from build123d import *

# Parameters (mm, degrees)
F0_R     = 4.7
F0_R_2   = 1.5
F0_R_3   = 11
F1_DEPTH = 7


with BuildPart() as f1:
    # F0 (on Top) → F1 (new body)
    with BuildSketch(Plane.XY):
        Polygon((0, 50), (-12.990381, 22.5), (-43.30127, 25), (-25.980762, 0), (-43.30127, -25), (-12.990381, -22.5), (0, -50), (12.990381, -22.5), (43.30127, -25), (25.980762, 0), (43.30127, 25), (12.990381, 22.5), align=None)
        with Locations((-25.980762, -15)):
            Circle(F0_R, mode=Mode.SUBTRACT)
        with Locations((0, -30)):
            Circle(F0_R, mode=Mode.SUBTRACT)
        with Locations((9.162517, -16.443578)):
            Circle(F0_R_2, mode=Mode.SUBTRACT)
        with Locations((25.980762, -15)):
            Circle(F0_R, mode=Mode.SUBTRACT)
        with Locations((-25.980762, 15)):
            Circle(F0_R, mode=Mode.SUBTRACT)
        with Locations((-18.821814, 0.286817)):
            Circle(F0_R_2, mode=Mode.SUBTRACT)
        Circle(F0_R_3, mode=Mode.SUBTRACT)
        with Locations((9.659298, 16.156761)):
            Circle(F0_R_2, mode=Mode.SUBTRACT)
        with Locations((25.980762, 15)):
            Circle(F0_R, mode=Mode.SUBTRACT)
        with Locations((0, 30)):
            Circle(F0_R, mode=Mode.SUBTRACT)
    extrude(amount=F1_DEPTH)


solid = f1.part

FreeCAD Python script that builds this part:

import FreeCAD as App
import Part
import Sketcher

V = App.Vector


def add_polygon(sketch, points):
    """Adds a closed chain of lines whose ends are joined by coincident constraints."""
    first, n = sketch.GeometryCount, len(points)
    for a, b in zip(points, points[1:] + points[:1]):
        sketch.addGeometry(Part.LineSegment(App.Vector(*a, 0), App.Vector(*b, 0)), False)
    for i in range(n):
        sketch.addConstraint(Sketcher.Constraint("Coincident", first + i, 2, first + (i + 1) % n, 1))

doc = App.newDocument("Part")
body = doc.addObject("PartDesign::Body", "Body")

# Sketch on XY plane
sketch1 = doc.addObject("Sketcher::SketchObject", "Sketch")
body.addObject(sketch1)
sketch1.AttachmentSupport = (doc.XY_Plane, [""])
sketch1.MapMode = "FlatFace"
add_polygon(sketch1, [(0, 50), (-13, 22.5), (-43.3, 25), (-26, 0), (-43.3, -25), (-13, -22.5), (0, -50), (13, -22.5), (43.3, -25), (26, 0), (43.3, 25), (13, 22.5)])  # lines 0-11
sketch1.addGeometry(Part.Circle(V(-26, -15, 0), V(0, 0, 1), 4.7), False)  # 12
sketch1.addGeometry(Part.Circle(V(0, -30, 0), V(0, 0, 1), 4.7), False)  # 13
sketch1.addGeometry(Part.Circle(V(9.2, -16.4, 0), V(0, 0, 1), 1.5), False)  # 14
sketch1.addGeometry(Part.Circle(V(26, -15, 0), V(0, 0, 1), 4.7), False)  # 15
sketch1.addGeometry(Part.Circle(V(-18.8, 0.3, 0), V(0, 0, 1), 1.5), False)  # 16
sketch1.addGeometry(Part.Circle(V(-26, 15, 0), V(0, 0, 1), 4.7), False)  # 17
sketch1.addGeometry(Part.Circle(V(0, 0, 0), V(0, 0, 1), 11), False)  # 18
sketch1.addGeometry(Part.Circle(V(9.7, 16.2, 0), V(0, 0, 1), 1.5), False)  # 19
sketch1.addGeometry(Part.Circle(V(26, 15, 0), V(0, 0, 1), 4.7), False)  # 20
sketch1.addGeometry(Part.Circle(V(0, 30, 0), V(0, 0, 1), 4.7), False)  # 21
sketch1.addConstraint(Sketcher.Constraint("Coincident", 18, 3, -1, 1))
sketch1.addConstraint(Sketcher.Constraint("Equal", 12, 13))
sketch1.addConstraint(Sketcher.Constraint("Equal", 13, 15))
sketch1.addConstraint(Sketcher.Constraint("Equal", 14, 16))
sketch1.addConstraint(Sketcher.Constraint("Equal", 15, 17))
sketch1.addConstraint(Sketcher.Constraint("Equal", 16, 19))
sketch1.addConstraint(Sketcher.Constraint("Equal", 17, 20))
sketch1.addConstraint(Sketcher.Constraint("Equal", 20, 21))
sketch1.addConstraint(Sketcher.Constraint("Symmetric", 15, 3, 17, 3, -1, 1))
sketch1.addConstraint(Sketcher.Constraint("Symmetric", 12, 3, 20, 3, -1, 1))
sketch1.addConstraint(Sketcher.Constraint("Symmetric", 13, 3, 21, 3, -1, 1))
sketch1.addConstraint(Sketcher.Constraint("Symmetric", 0, 2, 6, 2, -1, 1))
sketch1.addConstraint(Sketcher.Constraint("Symmetric", 1, 2, 7, 2, -1, 1))
sketch1.addConstraint(Sketcher.Constraint("Symmetric", 2, 2, 8, 2, -1, 1))
sketch1.addConstraint(Sketcher.Constraint("Symmetric", 3, 2, 9, 2, -1, 1))
sketch1.addConstraint(Sketcher.Constraint("Symmetric", 4, 2, 10, 2, -1, 1))
sketch1.addConstraint(Sketcher.Constraint("Symmetric", 5, 2, 11, 2, -1, 1))
sketch1.addConstraint(Sketcher.Constraint("Symmetric", 12, 3, 15, 3, -2))
sketch1.addConstraint(Sketcher.Constraint("Symmetric", 4, 2, 6, 2, -2))
sketch1.addConstraint(Sketcher.Constraint("Symmetric", 3, 2, 7, 2, -2))
sketch1.addConstraint(Sketcher.Constraint("PointOnObject", 13, 3, -2))
sketch1.addConstraint(Sketcher.Constraint("PointOnObject", 2, 2, -1))
sketch1.addConstraint(Sketcher.Constraint("PointOnObject", 5, 2, -2))
sketch1.addConstraint(Sketcher.Constraint("Vertical", 17, 3, 2, 2))
sketch1.addConstraint(Sketcher.Constraint("Equal", 0, 1))
sketch1.addConstraint(Sketcher.Constraint("Equal", 1, 2))
sketch1.addConstraint(Sketcher.Constraint("Diameter", 14, 3.0))
sketch1.addConstraint(Sketcher.Constraint("Diameter", 18, 22.0))
sketch1.addConstraint(Sketcher.Constraint("Diameter", 12, 9.4))
sketch1.addConstraint(Sketcher.Constraint("DistanceY", 12, 3, -1, 1, 15.0))
sketch1.addConstraint(Sketcher.Constraint("DistanceY", 13, 3, -1, 1, 30.0))
sketch1.addConstraint(Sketcher.Constraint("DistanceY", -1, 1, 1, 2, 25.0))
sketch1.addConstraint(Sketcher.Constraint("DistanceY", 5, 2, -1, 1, 50.0))
sketch1.addConstraint(Sketcher.Constraint("DistanceY", -1, 1, 0, 2, 22.5))
sketch1.addConstraint(Sketcher.Constraint("DistanceX", 4, 2, 14, 3, 22.152898))
sketch1.addConstraint(Sketcher.Constraint("DistanceX", 12, 3, -1, 1, 25.980762))
sketch1.addConstraint(Sketcher.Constraint("DistanceY", -1, 1, 19, 3, 16.156761))
sketch1.addConstraint(Sketcher.Constraint("DistanceX", 16, 3, 14, 3, 27.984331))
sketch1.addConstraint(Sketcher.Constraint("DistanceX", 16, 3, 19, 3, 28.481112))
sketch1.addConstraint(Sketcher.Constraint("DistanceY", 14, 3, 19, 3, 32.600339))
sketch1.addConstraint(Sketcher.Constraint("DistanceY", -1, 1, 16, 3, 0.286817))
pad1 = doc.addObject("PartDesign::Pad", "Pad")
body.addObject(pad1)
pad1.Profile = sketch1
pad1.Length = 7

doc.recompute()
